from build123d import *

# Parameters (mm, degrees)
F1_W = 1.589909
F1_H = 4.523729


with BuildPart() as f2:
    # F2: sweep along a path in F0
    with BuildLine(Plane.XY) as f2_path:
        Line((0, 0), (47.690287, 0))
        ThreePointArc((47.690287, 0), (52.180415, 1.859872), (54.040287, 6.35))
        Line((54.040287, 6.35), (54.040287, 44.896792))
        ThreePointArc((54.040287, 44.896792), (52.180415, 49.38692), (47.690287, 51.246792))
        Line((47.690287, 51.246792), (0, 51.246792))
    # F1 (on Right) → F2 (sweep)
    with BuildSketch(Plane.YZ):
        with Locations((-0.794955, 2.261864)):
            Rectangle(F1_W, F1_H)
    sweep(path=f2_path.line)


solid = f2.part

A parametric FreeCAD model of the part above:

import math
import FreeCAD as App
import Part
import Sketcher

V = App.Vector
Q = App.Units.Quantity


def add_polygon(sketch, points):
    """Adds a closed chain of lines whose ends are joined by coincident constraints."""
    first, n = sketch.GeometryCount, len(points)
    for a, b in zip(points, points[1:] + points[:1]):
        sketch.addGeometry(Part.LineSegment(App.Vector(*a, 0), App.Vector(*b, 0)), False)
    for i in range(n):
        sketch.addConstraint(Sketcher.Constraint("Coincident", first + i, 2, first + (i + 1) % n, 1))

doc = App.newDocument("Part")
body = doc.addObject("PartDesign::Body", "Body")

sketch1 = body.newObject("Sketcher::SketchObject", "Sketch")
sketch1.AttachmentSupport = (doc.getObject("YZ_Plane"), [""])
sketch1.MapMode = "FlatFace"
add_polygon(sketch1, [(-1.6, 4.5), (-1.6, 0), (0, 0), (0, 4.5)])
sketch1.addConstraint(Sketcher.Constraint("Vertical", 0))
sketch1.addConstraint(Sketcher.Constraint("Horizontal", 1))
sketch1.addConstraint(Sketcher.Constraint("Vertical", 2))
sketch1.addConstraint(Sketcher.Constraint("Horizontal", 3))
sketch1.addConstraint(Sketcher.Constraint("Coincident", 1, 2, -1, 1))
sketch1.addConstraint(Sketcher.Constraint("DistanceX", 1, 1, 1, 2, 1.589909))
sketch1.addConstraint(Sketcher.Constraint("DistanceY", 0, 2, 0, 1, 4.523729))

sketch2 = body.newObject("Sketcher::SketchObject", "Sketch001")
sketch2.AttachmentSupport = (doc.getObject("XY_Plane"), [""])
sketch2.MapMode = "FlatFace"
sketch2.addGeometry(Part.LineSegment(V(0, 0, 0), V(48, 0, 0)), False)
sketch2.addGeometry(Part.ArcOfCircle(Part.Circle(V(48, 6, 0), V(0, 0, 1), 6), math.radians(-90), math.radians(0)), False)
sketch2.addGeometry(Part.LineSegment(V(54, 6, 0), V(54, 45, 0)), False)
sketch2.addGeometry(Part.ArcOfCircle(Part.Circle(V(48, 45, 0), V(0, 0, 1), 6), math.radians(0), math.radians(90)), False)
sketch2.addGeometry(Part.LineSegment(V(48, 51, 0), V(0, 51, 0)), False)
sketch2.addConstraint(Sketcher.Constraint("Tangent", 0, 2, 1, 1))
sketch2.addConstraint(Sketcher.Constraint("Tangent", 1, 2, 2, 1))
sketch2.addConstraint(Sketcher.Constraint("Tangent", 2, 2, 3, 1))
sketch2.addConstraint(Sketcher.Constraint("Tangent", 3, 2, 4, 1))
sketch2.addConstraint(Sketcher.Constraint("Horizontal", 0))
sketch2.addConstraint(Sketcher.Constraint("Vertical", 2))
sketch2.addConstraint(Sketcher.Constraint("Horizontal", 4))
sketch2.addConstraint(Sketcher.Constraint("Coincident", 0, 1, -1, 1))
sketch2.addConstraint(Sketcher.Constraint("Equal", 1, 3))
sketch2.addConstraint(Sketcher.Constraint("PointOnObject", 4, 2, -2))
sketch2.addConstraint(Sketcher.Constraint("Radius", 1, Q("0.25 in")))
sketch2.addConstraint(Sketcher.Constraint("DistanceY", 2, 1, 2, 2, 38.546792))
sketch2.addConstraint(Sketcher.Constraint("DistanceX", 0, 1, 0, 2, 47.690287))
doc.recompute()

additivepipe = body.newObject("PartDesign::AdditivePipe", "AdditivePipe")
additivepipe.Profile = sketch1
additivepipe.Spine = (sketch2, ["Edge1", "Edge2", "Edge3", "Edge4", "Edge5"])

doc.recompute()
